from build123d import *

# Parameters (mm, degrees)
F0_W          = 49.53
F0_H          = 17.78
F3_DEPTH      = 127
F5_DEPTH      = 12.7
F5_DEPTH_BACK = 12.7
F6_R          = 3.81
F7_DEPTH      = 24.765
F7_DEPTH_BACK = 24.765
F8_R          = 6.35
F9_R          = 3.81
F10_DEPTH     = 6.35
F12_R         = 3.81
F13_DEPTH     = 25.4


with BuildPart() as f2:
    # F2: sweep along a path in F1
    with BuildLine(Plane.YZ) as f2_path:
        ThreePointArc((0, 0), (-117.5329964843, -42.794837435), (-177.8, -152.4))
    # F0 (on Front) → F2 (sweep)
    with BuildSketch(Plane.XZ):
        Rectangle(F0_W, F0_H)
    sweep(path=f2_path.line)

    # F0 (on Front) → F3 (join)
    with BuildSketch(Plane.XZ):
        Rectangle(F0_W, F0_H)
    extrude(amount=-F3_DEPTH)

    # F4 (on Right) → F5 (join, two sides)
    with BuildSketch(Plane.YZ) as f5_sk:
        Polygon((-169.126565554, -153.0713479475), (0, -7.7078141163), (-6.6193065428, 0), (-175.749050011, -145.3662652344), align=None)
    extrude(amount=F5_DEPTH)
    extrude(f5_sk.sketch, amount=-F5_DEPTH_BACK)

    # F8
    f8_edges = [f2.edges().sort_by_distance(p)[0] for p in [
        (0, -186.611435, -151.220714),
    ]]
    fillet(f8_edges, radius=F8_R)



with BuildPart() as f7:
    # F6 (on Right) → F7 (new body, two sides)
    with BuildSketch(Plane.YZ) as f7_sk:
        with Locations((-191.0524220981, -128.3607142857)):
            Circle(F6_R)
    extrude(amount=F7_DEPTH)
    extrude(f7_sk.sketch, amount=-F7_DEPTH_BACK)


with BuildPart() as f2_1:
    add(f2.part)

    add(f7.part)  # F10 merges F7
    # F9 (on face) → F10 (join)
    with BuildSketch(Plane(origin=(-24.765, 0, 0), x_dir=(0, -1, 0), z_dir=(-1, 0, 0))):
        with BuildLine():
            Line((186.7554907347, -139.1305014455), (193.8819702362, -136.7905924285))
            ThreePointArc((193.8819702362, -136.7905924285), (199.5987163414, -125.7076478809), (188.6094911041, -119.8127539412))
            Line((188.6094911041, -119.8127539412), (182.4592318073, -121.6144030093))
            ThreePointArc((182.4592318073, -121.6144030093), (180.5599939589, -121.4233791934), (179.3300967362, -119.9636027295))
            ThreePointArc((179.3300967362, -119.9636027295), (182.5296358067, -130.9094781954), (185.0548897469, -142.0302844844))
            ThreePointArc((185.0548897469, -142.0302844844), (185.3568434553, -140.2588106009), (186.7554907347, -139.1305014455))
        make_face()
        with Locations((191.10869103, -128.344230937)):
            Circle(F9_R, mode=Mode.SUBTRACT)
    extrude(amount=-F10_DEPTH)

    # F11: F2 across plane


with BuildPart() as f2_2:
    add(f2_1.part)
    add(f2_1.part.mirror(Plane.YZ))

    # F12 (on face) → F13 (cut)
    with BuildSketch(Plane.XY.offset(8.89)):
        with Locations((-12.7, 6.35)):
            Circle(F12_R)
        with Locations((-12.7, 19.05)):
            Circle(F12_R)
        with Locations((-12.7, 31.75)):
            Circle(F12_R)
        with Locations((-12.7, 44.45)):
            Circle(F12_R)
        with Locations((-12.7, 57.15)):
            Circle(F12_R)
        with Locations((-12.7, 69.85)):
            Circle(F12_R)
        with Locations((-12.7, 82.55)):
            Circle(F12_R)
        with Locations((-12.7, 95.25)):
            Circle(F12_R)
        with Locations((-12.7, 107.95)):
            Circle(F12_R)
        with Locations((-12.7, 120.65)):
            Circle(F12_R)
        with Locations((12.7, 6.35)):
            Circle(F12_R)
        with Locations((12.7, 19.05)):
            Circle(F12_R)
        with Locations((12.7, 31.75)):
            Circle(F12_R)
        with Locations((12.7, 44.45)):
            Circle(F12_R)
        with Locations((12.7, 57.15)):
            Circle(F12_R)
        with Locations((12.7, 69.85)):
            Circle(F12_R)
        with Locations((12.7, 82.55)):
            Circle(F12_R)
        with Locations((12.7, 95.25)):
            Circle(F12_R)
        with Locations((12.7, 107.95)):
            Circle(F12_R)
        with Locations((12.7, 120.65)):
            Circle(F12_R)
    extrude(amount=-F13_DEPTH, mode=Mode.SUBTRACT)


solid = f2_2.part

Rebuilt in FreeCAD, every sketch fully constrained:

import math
import FreeCAD as App
import Part
import Sketcher
from FreeCAD import Vector
Q = App.Units.Quantity


def edges_at(feature, points):
    """Names of the edges that pass closest to the given points."""
    edges = feature.Shape.Edges
    near = lambda p: min(range(len(edges)), key=lambda i: edges[i].distToShape(Part.Vertex(*p))[0])
    return sorted({f"Edge{near(p) + 1}" for p in points})

doc = App.newDocument("Part")
body = doc.addObject("PartDesign::Body", "Body")

sketch1 = doc.addObject("Sketcher::SketchObject", "Sketch")
body.addObject(sketch1)
sketch1.AttachmentSupport = (doc.XZ_Plane, [""])
sketch1.MapMode = "FlatFace"
sketch1.addGeometry([
    Part.LineSegment(Vector(-25, 9, 0), Vector(-25, -9, 0)),
    Part.LineSegment(Vector(-25, -9, 0), Vector(25, -9, 0)),
    Part.LineSegment(Vector(25, -9, 0), Vector(25, 9, 0)),
    Part.LineSegment(Vector(25, 9, 0), Vector(-25, 9, 0)),
], False)
sketch1.addConstraint([
    Sketcher.Constraint("Coincident", 0, 2, 1, 1),
    Sketcher.Constraint("Coincident", 1, 2, 2, 1),
    Sketcher.Constraint("Coincident", 2, 2, 3, 1),
    Sketcher.Constraint("Coincident", 3, 2, 0, 1),
    Sketcher.Constraint("Vertical", 0),
    Sketcher.Constraint("Horizontal", 1),
    Sketcher.Constraint("Vertical", 2),
    Sketcher.Constraint("Horizontal", 3),
    Sketcher.Constraint("Symmetric", 0, 2, 2, 2, -1, 1),
    Sketcher.Constraint("DistanceY", 0, 2, 0, 1, Q("0.7 in")),
    Sketcher.Constraint("DistanceX", 1, 1, 1, 2, Q("1.95 in")),
])

sketch2 = doc.addObject("Sketcher::SketchObject", "Sketch001")
body.addObject(sketch2)
sketch2.AttachmentSupport = (doc.YZ_Plane, [""])
sketch2.MapMode = "FlatFace"
sketch2.addGeometry(Part.ArcOfCircle(Part.Circle(Vector(-2, -178, 0), Vector(0, 0, 1), 178), math.radians(89), math.radians(172)), False)
sketch2.addConstraint([
    Sketcher.Constraint("Coincident", 0, 1, -1, 1),
    Sketcher.Constraint("Radius", 0, Q("7 in")),
    Sketcher.Constraint("DistanceX", 0, 2, -1, 1, Q("7 in")),
    Sketcher.Constraint("DistanceY", 0, 2, -1, 1, Q("6 in")),
])
doc.recompute()

additivepipe = doc.addObject("PartDesign::AdditivePipe", "AdditivePipe")
body.addObject(additivepipe)
additivepipe.Profile = sketch1
additivepipe.Spine = (sketch2, ["Edge1"])

sketch3 = doc.addObject("Sketcher::SketchObject", "Sketch002")
body.addObject(sketch3)
sketch3.AttachmentSupport = (doc.XZ_Plane, [""])
sketch3.MapMode = "FlatFace"
sketch3.addGeometry([
    Part.LineSegment(Vector(-25, 9, 0), Vector(-25, -9, 0)),
    Part.LineSegment(Vector(-25, -9, 0), Vector(25, -9, 0)),
    Part.LineSegment(Vector(25, -9, 0), Vector(25, 9, 0)),
    Part.LineSegment(Vector(25, 9, 0), Vector(-25, 9, 0)),
], False)
sketch3.addConstraint([
    Sketcher.Constraint("Coincident", 0, 2, 1, 1),
    Sketcher.Constraint("Coincident", 1, 2, 2, 1),
    Sketcher.Constraint("Coincident", 2, 2, 3, 1),
    Sketcher.Constraint("Coincident", 3, 2, 0, 1),
    Sketcher.Constraint("Vertical", 0),
    Sketcher.Constraint("Horizontal", 1),
    Sketcher.Constraint("Vertical", 2),
    Sketcher.Constraint("Horizontal", 3),
    Sketcher.Constraint("Symmetric", 0, 2, 2, 2, -1, 1),
    Sketcher.Constraint("DistanceY", 0, 2, 0, 1, Q("0.7 in")),
    Sketcher.Constraint("DistanceX", 1, 1, 1, 2, Q("1.95 in")),
])
pad1 = doc.addObject("PartDesign::Pad", "Pad")
body.addObject(pad1)
pad1.Profile = sketch3
pad1.Length = Q("5 in")
pad1.Reversed = True

sketch4 = doc.addObject("Sketcher::SketchObject", "Sketch003")
body.addObject(sketch4)
sketch4.AttachmentSupport = (doc.YZ_Plane, [""])
sketch4.MapMode = "FlatFace"
sketch4.addGeometry([
    Part.LineSegment(Vector(-169, -153, 0), Vector(0, -8, 0)),
    Part.LineSegment(Vector(0, -8, 0), Vector(-7, 0, 0)),
    Part.LineSegment(Vector(-7, 0, 0), Vector(-176, -145, 0)),
    Part.LineSegment(Vector(-176, -145, 0), Vector(-169, -153, 0)),
], False)
sketch4.addConstraint([
    Sketcher.Constraint("Coincident", 0, 2, 1, 1),
    Sketcher.Constraint("Coincident", 1, 2, 2, 1),
    Sketcher.Constraint("Coincident", 2, 2, 3, 1),
    Sketcher.Constraint("Coincident", 3, 2, 0, 1),
    Sketcher.Constraint("PointOnObject", 0, 2, -2),
    Sketcher.Constraint("PointOnObject", 1, 2, -1),
    Sketcher.Constraint("Parallel", 0, 2),
    Sketcher.Constraint("Perpendicular", 2, 3),
    Sketcher.Constraint("Distance", 1, Q("0.4 in")),
    Sketcher.Constraint("Distance", 0, Q("8.78 in")),
    Sketcher.Constraint("Distance", 2, Q("223.01619 mm")),
    Sketcher.Constraint("DistanceX", 2, 2, -1, 1, Q("175.74905 mm")),
])
pad2 = doc.addObject("PartDesign::Pad", "Pad001")
body.addObject(pad2)
pad2.Profile = sketch4
pad2.Type = "TwoLengths"
pad2.Length = Q("0.5 in")
pad2.Length2 = Q("0.5 in")
doc.recompute()

fillet = doc.addObject("PartDesign::Fillet", "Fillet")
body.addObject(fillet)
fillet.Base = (pad2, edges_at(pad2, [(0, -186.611, -151.221)]))
fillet.Radius = Q("0.25 in")
body2 = doc.addObject("PartDesign::Body", "Body001")

sketch5 = doc.addObject("Sketcher::SketchObject", "Sketch004")
body2.addObject(sketch5)
sketch5.AttachmentSupport = (doc.getObject("YZ_Plane001"), [""])
sketch5.MapMode = "FlatFace"
sketch5.addGeometry(Part.Circle(Vector(-191.1, -128.4, 0), Vector(0, 0, 1), 3.8), False)
sketch5.addConstraint([
    Sketcher.Constraint("Diameter", 0, Q("0.3 in")),
    Sketcher.Constraint("DistanceX", 0, 3, -1, 1, Q("191.052422 mm")),
    Sketcher.Constraint("DistanceY", 0, 3, -1, 1, Q("128.360714 mm")),
])
pad3 = doc.addObject("PartDesign::Pad", "Pad002")
body2.addObject(pad3)
pad3.Profile = sketch5
pad3.Type = "TwoLengths"
pad3.Length = Q("0.975 in")
pad3.Length2 = Q("0.975 in")
body.AllowCompound = True
doc.recompute()

boolean = doc.addObject("PartDesign::Boolean", "Boolean")
body.addObject(boolean)
boolean.Type = "Fuse"
boolean.addObjects([body2])

sketch6 = doc.addObject("Sketcher::SketchObject", "Sketch005")
body.addObject(sketch6)
sketch6.AttachmentSupport = (doc.YZ_Plane, [""])
sketch6.MapMode = "FlatFace"
sketch6.AttachmentOffset = App.Placement(Vector(0, 0, -0.975 * 25.4), App.Rotation())
sketch6.addGeometry([
    Part.LineSegment(Vector(-186.755491, -139.130501, 0), Vector(-193.88197, -136.790592, 0)),
    Part.ArcOfCircle(Part.Circle(Vector(-191.108691, -128.344231, 0), Vector(0, 0, 1), 8.89), math.radians(73.672649), math.radians(251.822918)),
    Part.LineSegment(Vector(-188.609491, -119.812754, 0), Vector(-182.459232, -121.614403, 0)),
    Part.ArcOfCircle(Part.Circle(Vector(-181.745175, -119.176838, 0), Vector(0, 0, 1), 2.54), math.radians(-106.327351), math.radians(-18.044155)),
    Part.ArcOfCircle(Part.Circle(Vector(-1.82229, -177.790661, 0), Vector(0, 0, 1), 186.689555), math.radians(161.955845), math.radians(168.956748)),
    Part.ArcOfCircle(Part.Circle(Vector(-187.547856, -141.543748, 0), Vector(0, 0, 1), 2.54), math.radians(-11.043252), math.radians(71.822918)),
    Part.Circle(Vector(-191.108691, -128.344231, 0), Vector(0, 0, 1), 3.81),
], False)
sketch6.addConstraint([
    Sketcher.Constraint("Tangent", 0, 2, 1, 2),
    Sketcher.Constraint("Tangent", 1, 1, 2, 1),
    Sketcher.Constraint("Tangent", 2, 2, 3, 1),
    Sketcher.Constraint("Tangent", 3, 2, 4, 1),
    Sketcher.Constraint("Tangent", 4, 2, 5, 1),
    Sketcher.Constraint("Tangent", 5, 2, 0, 1),
    Sketcher.Constraint("Coincident", 6, 3, 1, 3),
    Sketcher.Constraint("Equal", 3, 5),
    Sketcher.Constraint("Diameter", 6, Q("0.3 in")),
    Sketcher.Constraint("Radius", 3, Q("0.1 in")),
    Sketcher.Constraint("Radius", 1, Q("0.35 in")),
    Sketcher.Constraint("Radius", 4, Q("186.689555 mm")),
    Sketcher.Constraint("DistanceY", 5, 2, -1, 1, Q("139.130501 mm")),
    Sketcher.Constraint("DistanceX", 1, 3, 4, 3, Q("189.286401 mm")),
    Sketcher.Constraint("DistanceX", 1, 3, 1, 1, Q("2.4992 mm")),
    Sketcher.Constraint("DistanceY", 2, 2, 3, 2, Q("1.6508 mm")),
    Sketcher.Constraint("DistanceX", 5, 2, 4, 2, Q("1.700601 mm")),
    Sketcher.Constraint("DistanceX", 1, 3, -1, 1, Q("191.108691 mm")),
])
pad4 = doc.addObject("PartDesign::Pad", "Pad003")
body.addObject(pad4)
pad4.Profile = sketch6
pad4.Length = Q("0.25 in")
body3 = doc.addObject("PartDesign::Body", "Body002")
doc.recompute()

body3.BaseFeature = body
doc.recompute()

mirroring = doc.addObject("Part::Mirroring", "Mirroring")
mirroring.Source = body
mirroring.Base = Vector(0, 0, 0)
mirroring.Normal = Vector(1, 0, 0)
body4 = doc.addObject("PartDesign::Body", "Body003")
body4.BaseFeature = mirroring
boolean2 = doc.addObject("PartDesign::Boolean", "Boolean001")
body3.addObject(boolean2)
boolean2.Type = "Fuse"
boolean2.addObjects([body4])
doc.recompute()

sketch7 = doc.addObject("Sketcher::SketchObject", "Sketch006")
body3.addObject(sketch7)
sketch7.AttachmentSupport = (doc.getObject("XY_Plane002"), [""])
sketch7.MapMode = "FlatFace"
sketch7.AttachmentOffset = App.Placement(Vector(0, 0, 0.35 * 25.4), App.Rotation())
sketch7.addGeometry([
    Part.Circle(Vector(-12.7, 6.3, 0), Vector(0, 0, 1), 3.8),
    Part.Circle(Vector(-12.7, 19.1, 0), Vector(0, 0, 1), 3.8),
    Part.Circle(Vector(-12.7, 31.8, 0), Vector(0, 0, 1), 3.8),
    Part.Circle(Vector(-12.7, 44.5, 0), Vector(0, 0, 1), 3.8),
    Part.Circle(Vector(-12.7, 57.1, 0), Vector(0, 0, 1), 3.8),
    Part.Circle(Vector(-12.7, 69.8, 0), Vector(0, 0, 1), 3.8),
    Part.Circle(Vector(-12.7, 82.5, 0), Vector(0, 0, 1), 3.8),
    Part.Circle(Vector(-12.7, 95.2, 0), Vector(0, 0, 1), 3.8),
    Part.Circle(Vector(-12.7, 108, 0), Vector(0, 0, 1), 3.8),
    Part.Circle(Vector(-12.7, 120.7, 0), Vector(0, 0, 1), 3.8),
    Part.Circle(Vector(12.7, 6.3, 0), Vector(0, 0, 1), 3.8),
    Part.Circle(Vector(12.7, 19.1, 0), Vector(0, 0, 1), 3.8),
    Part.Circle(Vector(12.7, 31.8, 0), Vector(0, 0, 1), 3.8),
    Part.Circle(Vector(12.7, 44.5, 0), Vector(0, 0, 1), 3.8),
    Part.Circle(Vector(12.7, 57.1, 0), Vector(0, 0, 1), 3.8),
    Part.Circle(Vector(12.7, 69.8, 0), Vector(0, 0, 1), 3.8),
    Part.Circle(Vector(12.7, 82.5, 0), Vector(0, 0, 1), 3.8),
    Part.Circle(Vector(12.7, 95.2, 0), Vector(0, 0, 1), 3.8),
    Part.Circle(Vector(12.7, 108, 0), Vector(0, 0, 1), 3.8),
    Part.Circle(Vector(12.7, 120.7, 0), Vector(0, 0, 1), 3.8),
], False)
sketch7.addConstraint([
    Sketcher.Constraint("Equal", 0, 1),
    Sketcher.Constraint("Equal", 1, 2),
    Sketcher.Constraint("Equal", 2, 3),
    Sketcher.Constraint("Equal", 3, 4),
    Sketcher.Constraint("Equal", 4, 5),
    Sketcher.Constraint("Equal", 5, 6),
    Sketcher.Constraint("Equal", 6, 7),
    Sketcher.Constraint("Equal", 7, 8),
    Sketcher.Constraint("Equal", 8, 9),
    Sketcher.Constraint("Equal", 9, 10),
    Sketcher.Constraint("Equal", 10, 11),
    Sketcher.Constraint("Equal", 11, 12),
    Sketcher.Constraint("Equal", 12, 13),
    Sketcher.Constraint("Equal", 13, 14),
    Sketcher.Constraint("Equal", 14, 15),
    Sketcher.Constraint("Equal", 15, 16),
    Sketcher.Constraint("Equal", 16, 17),
    Sketcher.Constraint("Equal", 17, 18),
    Sketcher.Constraint("Equal", 18, 19),
    Sketcher.Constraint("Symmetric", 0, 3, 10, 3, -2),
    Sketcher.Constraint("Symmetric", 1, 3, 11, 3, -2),
    Sketcher.Constraint("Symmetric", 2, 3, 12, 3, -2),
    Sketcher.Constraint("Symmetric", 3, 3, 13, 3, -2),
    Sketcher.Constraint("Symmetric", 4, 3, 14, 3, -2),
    Sketcher.Constraint("Symmetric", 5, 3, 15, 3, -2),
    Sketcher.Constraint("Symmetric", 6, 3, 16, 3, -2),
    Sketcher.Constraint("Symmetric", 7, 3, 17, 3, -2),
    Sketcher.Constraint("Symmetric", 8, 3, 18, 3, -2),
    Sketcher.Constraint("Symmetric", 9, 3, 19, 3, -2),
    Sketcher.Constraint("Vertical", 0, 3, 1, 3),
    Sketcher.Constraint("Vertical", 1, 3, 2, 3),
    Sketcher.Constraint("Vertical", 2, 3, 3, 3),
    Sketcher.Constraint("Vertical", 3, 3, 4, 3),
    Sketcher.Constraint("Vertical", 4, 3, 5, 3),
    Sketcher.Constraint("Vertical", 5, 3, 6, 3),
    Sketcher.Constraint("Vertical", 6, 3, 7, 3),
    Sketcher.Constraint("Vertical", 7, 3, 8, 3),
    Sketcher.Constraint("Vertical", 8, 3, 9, 3),
    Sketcher.Constraint("Diameter", 0, Q("0.3 in")),
    Sketcher.Constraint("DistanceY", 0, 3, 2, 3, Q("1 in")),
    Sketcher.Constraint("DistanceY", 1, 3, 3, 3, Q("1 in")),
    Sketcher.Constraint("DistanceY", 2, 3, 4, 3, Q("1 in")),
    Sketcher.Constraint("DistanceY", 3, 3, 5, 3, Q("1 in")),
    Sketcher.Constraint("DistanceY", 4, 3, 6, 3, Q("1 in")),
    Sketcher.Constraint("DistanceY", 5, 3, 7, 3, Q("1 in")),
    Sketcher.Constraint("DistanceY", 6, 3, 8, 3, Q("1 in")),
    Sketcher.Constraint("DistanceY", 7, 3, 9, 3, Q("1 in")),
    Sketcher.Constraint("DistanceX", 0, 3, 10, 3, Q("1 in")),
    Sketcher.Constraint("DistanceY", 0, 3, 1, 3, Q("0.5 in")),
    Sketcher.Constraint("DistanceY", -1, 1, 0, 3, Q("0.25 in")),
])
pocket1 = doc.addObject("PartDesign::Pocket", "Pocket")
body3.addObject(pocket1)
pocket1.Profile = sketch7
pocket1.Length = Q("1 in")
mirroring.Visibility = False

doc.recompute()
